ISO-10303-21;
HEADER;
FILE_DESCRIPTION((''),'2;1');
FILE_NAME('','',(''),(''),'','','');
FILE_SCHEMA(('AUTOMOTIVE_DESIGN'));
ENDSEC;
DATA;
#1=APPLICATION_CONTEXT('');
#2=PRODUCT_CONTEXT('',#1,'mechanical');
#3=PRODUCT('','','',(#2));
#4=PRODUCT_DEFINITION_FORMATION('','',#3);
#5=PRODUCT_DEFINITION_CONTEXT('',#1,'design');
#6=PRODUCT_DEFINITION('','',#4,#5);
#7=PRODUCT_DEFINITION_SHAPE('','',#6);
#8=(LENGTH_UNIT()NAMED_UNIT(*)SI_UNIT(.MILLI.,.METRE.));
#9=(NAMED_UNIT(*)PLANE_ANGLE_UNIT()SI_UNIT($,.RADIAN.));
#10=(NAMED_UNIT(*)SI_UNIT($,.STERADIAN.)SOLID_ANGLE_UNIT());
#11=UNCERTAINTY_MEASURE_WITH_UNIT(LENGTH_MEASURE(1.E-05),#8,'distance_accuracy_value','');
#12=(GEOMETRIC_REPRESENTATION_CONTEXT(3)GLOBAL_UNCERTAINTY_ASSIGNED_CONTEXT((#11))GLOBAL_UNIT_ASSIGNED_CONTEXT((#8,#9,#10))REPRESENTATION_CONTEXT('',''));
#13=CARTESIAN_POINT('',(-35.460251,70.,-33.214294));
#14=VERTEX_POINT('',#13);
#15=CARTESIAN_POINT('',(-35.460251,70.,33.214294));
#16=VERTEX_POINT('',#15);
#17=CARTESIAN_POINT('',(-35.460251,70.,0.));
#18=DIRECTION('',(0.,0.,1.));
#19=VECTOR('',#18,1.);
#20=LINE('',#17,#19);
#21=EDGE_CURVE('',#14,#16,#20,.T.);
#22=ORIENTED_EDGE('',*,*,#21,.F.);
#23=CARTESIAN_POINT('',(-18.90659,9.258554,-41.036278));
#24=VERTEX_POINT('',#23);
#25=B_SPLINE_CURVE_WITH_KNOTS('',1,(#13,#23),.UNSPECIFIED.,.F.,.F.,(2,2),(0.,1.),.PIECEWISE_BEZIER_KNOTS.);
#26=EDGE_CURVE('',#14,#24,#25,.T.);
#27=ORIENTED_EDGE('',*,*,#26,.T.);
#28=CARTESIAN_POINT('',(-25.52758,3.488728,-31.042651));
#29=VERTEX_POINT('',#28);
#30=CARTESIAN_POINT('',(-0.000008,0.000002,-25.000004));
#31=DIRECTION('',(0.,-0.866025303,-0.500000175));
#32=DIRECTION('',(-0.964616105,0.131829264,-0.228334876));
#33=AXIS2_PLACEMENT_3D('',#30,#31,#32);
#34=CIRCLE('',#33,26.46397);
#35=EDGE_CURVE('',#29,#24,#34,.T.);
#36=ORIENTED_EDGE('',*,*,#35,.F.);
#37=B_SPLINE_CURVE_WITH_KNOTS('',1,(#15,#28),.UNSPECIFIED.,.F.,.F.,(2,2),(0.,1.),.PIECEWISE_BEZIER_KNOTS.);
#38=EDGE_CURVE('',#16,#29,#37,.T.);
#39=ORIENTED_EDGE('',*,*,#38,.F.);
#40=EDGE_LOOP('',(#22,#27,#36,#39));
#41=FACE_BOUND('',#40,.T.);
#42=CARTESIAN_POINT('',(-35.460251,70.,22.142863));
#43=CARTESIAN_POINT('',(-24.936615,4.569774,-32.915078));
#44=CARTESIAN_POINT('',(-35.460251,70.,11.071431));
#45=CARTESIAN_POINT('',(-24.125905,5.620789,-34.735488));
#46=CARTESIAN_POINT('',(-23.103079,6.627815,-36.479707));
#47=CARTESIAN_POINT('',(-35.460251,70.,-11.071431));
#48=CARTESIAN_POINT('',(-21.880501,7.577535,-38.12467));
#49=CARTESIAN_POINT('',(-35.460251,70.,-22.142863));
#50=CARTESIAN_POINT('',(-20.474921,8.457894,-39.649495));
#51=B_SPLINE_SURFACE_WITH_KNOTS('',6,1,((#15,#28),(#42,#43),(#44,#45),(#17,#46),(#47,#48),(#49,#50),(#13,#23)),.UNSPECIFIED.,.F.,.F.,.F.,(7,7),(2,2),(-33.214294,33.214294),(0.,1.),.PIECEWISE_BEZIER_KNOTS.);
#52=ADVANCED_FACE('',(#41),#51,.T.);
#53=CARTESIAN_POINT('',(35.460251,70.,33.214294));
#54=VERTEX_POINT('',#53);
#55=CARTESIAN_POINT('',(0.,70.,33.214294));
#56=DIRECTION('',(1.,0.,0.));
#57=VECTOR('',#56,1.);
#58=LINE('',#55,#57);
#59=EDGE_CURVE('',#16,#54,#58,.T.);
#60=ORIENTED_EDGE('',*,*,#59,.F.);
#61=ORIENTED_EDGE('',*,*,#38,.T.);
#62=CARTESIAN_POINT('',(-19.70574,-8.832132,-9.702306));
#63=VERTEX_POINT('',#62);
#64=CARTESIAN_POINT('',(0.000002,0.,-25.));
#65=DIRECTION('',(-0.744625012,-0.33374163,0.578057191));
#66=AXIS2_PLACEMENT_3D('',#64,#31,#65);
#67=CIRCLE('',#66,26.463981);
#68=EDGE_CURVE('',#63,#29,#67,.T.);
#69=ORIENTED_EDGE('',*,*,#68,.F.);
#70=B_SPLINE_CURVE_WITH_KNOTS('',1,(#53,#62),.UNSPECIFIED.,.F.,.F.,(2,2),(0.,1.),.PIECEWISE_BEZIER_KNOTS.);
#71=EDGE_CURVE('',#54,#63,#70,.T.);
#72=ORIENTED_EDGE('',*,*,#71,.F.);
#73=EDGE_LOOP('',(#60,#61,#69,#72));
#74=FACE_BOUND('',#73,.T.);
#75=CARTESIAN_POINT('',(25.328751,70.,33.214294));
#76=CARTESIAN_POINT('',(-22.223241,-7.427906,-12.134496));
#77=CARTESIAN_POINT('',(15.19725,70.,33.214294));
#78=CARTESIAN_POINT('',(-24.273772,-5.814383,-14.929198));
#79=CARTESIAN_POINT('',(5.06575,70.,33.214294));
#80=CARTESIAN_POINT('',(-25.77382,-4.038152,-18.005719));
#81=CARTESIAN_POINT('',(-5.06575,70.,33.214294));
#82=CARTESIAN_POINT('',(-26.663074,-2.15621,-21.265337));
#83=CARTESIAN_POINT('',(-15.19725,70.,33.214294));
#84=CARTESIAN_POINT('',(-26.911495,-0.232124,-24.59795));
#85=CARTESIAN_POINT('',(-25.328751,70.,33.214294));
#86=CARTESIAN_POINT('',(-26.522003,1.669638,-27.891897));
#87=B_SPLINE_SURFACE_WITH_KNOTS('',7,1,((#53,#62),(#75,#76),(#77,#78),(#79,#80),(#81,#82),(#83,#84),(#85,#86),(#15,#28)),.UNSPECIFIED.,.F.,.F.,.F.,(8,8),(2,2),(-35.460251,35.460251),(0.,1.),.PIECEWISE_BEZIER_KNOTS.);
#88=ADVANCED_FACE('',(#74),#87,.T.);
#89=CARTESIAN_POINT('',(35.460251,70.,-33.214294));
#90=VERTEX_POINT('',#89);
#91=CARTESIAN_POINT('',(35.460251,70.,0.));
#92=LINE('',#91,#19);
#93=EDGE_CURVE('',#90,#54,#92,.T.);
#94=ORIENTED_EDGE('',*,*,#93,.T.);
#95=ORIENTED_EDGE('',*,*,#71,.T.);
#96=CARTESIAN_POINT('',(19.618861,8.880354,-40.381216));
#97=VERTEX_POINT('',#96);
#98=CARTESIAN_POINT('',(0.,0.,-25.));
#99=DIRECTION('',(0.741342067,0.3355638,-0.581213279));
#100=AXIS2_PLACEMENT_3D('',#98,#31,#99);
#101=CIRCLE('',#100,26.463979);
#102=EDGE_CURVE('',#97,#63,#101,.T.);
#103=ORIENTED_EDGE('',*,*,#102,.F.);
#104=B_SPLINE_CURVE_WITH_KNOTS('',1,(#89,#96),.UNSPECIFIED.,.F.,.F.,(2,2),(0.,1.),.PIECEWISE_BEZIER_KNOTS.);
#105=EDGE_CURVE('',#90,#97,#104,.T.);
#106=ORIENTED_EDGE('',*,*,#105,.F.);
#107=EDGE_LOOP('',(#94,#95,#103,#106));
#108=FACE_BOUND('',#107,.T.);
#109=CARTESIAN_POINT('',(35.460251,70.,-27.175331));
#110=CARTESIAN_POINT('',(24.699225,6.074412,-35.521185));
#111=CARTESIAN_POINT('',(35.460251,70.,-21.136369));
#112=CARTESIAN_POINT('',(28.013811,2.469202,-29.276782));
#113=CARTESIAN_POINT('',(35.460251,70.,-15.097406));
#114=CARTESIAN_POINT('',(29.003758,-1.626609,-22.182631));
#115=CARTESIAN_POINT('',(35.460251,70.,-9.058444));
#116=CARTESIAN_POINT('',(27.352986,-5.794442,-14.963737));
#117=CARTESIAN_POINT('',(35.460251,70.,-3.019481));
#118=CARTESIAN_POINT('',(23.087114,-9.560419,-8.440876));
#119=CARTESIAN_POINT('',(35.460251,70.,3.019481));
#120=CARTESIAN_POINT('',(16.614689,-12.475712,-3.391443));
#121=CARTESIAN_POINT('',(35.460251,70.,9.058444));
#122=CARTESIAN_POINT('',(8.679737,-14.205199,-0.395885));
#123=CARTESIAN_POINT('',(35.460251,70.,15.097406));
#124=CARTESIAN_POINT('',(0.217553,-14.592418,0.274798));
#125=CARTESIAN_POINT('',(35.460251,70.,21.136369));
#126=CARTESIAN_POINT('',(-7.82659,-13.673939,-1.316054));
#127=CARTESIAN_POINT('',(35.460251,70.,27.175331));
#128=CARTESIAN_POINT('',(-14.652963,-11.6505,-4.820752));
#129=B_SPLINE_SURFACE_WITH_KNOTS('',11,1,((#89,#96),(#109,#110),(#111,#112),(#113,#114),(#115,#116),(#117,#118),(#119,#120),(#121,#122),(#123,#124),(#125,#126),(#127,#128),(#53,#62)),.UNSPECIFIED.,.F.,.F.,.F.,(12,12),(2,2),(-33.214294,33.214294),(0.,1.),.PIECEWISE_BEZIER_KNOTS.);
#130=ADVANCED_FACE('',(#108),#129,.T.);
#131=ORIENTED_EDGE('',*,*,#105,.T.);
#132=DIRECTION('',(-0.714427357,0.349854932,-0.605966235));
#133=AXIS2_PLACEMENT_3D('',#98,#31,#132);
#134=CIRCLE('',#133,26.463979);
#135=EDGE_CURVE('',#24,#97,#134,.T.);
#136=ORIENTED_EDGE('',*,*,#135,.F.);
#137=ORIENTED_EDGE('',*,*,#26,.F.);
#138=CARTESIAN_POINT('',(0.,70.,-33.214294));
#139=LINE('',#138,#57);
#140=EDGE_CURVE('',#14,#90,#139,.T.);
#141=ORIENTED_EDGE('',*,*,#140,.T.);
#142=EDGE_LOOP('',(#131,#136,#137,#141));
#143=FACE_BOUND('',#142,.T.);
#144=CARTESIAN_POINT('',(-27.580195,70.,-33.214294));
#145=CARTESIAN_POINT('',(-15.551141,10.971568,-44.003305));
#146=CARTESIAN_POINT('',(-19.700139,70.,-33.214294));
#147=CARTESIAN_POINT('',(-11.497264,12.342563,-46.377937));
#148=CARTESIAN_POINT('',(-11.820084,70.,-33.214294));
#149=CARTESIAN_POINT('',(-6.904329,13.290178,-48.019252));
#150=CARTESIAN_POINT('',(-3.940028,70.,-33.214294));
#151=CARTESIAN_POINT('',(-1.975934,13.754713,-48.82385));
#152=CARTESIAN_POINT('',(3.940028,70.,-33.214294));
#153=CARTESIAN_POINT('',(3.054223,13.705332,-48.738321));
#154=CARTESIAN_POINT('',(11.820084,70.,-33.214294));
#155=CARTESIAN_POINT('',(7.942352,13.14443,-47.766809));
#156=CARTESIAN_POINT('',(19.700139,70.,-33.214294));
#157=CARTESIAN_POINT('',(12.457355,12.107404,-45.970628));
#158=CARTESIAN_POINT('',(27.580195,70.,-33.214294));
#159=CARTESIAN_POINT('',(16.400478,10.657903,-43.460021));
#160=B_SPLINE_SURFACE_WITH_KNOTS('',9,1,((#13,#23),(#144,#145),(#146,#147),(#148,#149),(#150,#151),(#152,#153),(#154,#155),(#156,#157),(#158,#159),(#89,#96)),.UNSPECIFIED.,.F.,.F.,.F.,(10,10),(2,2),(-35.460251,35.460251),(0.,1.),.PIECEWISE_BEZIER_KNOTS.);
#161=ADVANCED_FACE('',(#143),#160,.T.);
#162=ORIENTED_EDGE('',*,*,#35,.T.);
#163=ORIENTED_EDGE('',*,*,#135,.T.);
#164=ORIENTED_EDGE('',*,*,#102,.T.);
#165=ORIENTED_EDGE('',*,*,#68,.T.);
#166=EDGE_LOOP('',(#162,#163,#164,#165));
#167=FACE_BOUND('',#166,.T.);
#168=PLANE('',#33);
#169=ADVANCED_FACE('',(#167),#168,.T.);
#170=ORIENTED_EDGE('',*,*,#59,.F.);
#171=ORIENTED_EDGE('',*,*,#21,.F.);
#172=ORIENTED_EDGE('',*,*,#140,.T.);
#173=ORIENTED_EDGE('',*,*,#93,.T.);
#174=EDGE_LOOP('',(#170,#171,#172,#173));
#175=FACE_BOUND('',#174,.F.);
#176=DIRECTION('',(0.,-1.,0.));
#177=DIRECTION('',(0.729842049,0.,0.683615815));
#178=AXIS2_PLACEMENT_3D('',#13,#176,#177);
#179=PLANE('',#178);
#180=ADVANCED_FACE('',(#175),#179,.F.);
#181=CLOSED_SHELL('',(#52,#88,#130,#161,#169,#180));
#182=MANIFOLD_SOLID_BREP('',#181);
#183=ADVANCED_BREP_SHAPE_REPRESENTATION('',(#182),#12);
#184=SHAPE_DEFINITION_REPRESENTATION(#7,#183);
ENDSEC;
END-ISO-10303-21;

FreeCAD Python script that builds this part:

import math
import FreeCAD as App
import Part
import Sketcher
from FreeCAD import Vector


def add_polygon(sketch, points):
    """Adds a closed chain of lines whose ends are joined by coincident constraints."""
    first, n = sketch.GeometryCount, len(points)
    for a, b in zip(points, points[1:] + points[:1]):
        sketch.addGeometry(Part.LineSegment(App.Vector(*a, 0), App.Vector(*b, 0)), False)
    for i in range(n):
        sketch.addConstraint(Sketcher.Constraint("Coincident", first + i, 2, first + (i + 1) % n, 1))

doc = App.newDocument("Part")
body = doc.addObject("PartDesign::Body", "Body")

# Sketch on XZ plane
sketch1 = doc.addObject("Sketcher::SketchObject", "Sketch")
body.addObject(sketch1)
sketch1.AttachmentSupport = (doc.XZ_Plane, [""])
sketch1.MapMode = "FlatFace"
sketch1.AttachmentOffset = App.Placement(Vector(0, 0, -70), App.Rotation())
add_polygon(sketch1, [(-35, 33), (-35, -33), (35, -33), (35, 33)])  # lines 0-3
sketch1.addConstraint([
    Sketcher.Constraint("Vertical", 0),
    Sketcher.Constraint("Horizontal", 1),
    Sketcher.Constraint("Vertical", 2),
    Sketcher.Constraint("Horizontal", 3),
    Sketcher.Constraint("Symmetric", 0, 2, 2, 2, -1, 1),
    Sketcher.Constraint("DistanceX", 1, 1, 1, 2, 70.920502),
    Sketcher.Constraint("DistanceY", 0, 2, 0, 1, 66.428588),
])

# Sketch on an angled plane
sketch2 = doc.addObject("Sketcher::SketchObject", "Sketch001")
body.addObject(sketch2)
sketch2.Placement = App.Placement(Vector(0, 0, -25), App.Rotation(Vector(1, 0, 0), Vector(0, -0.500000175, 0.866025303), Vector(0, -0.866025303, -0.500000175), "ZXY"))
sketch2.addGeometry([
    Part.ArcOfCircle(Part.Circle(Vector(0, 0, 0), Vector(0, 0, 1), 26), math.radians(-42), math.radians(138)),
    Part.ArcOfCircle(Part.Circle(Vector(0, 0, 0), Vector(0, 0, 1), 26), math.radians(138), math.radians(195)),
    Part.ArcOfCircle(Part.Circle(Vector(0, 0, 0), Vector(0, 0, 1), 26), math.radians(-165), math.radians(-136)),
    Part.ArcOfCircle(Part.Circle(Vector(0, 0, 0), Vector(0, 0, 1), 26), math.radians(-136), math.radians(-42)),
], False)
sketch2.addConstraint([
    Sketcher.Constraint("Tangent", 0, 2, 1, 1),
    Sketcher.Constraint("Tangent", 1, 2, 2, 1),
    Sketcher.Constraint("Tangent", 2, 2, 3, 1),
    Sketcher.Constraint("Tangent", 3, 2, 0, 1),
    Sketcher.Constraint("Coincident", 0, 3, -1, 1),
    Sketcher.Constraint("Equal", 0, 3),
    Sketcher.Constraint("Radius", 0, 26.463979),
    Sketcher.Constraint("DistanceY", 2, 2, -1, 1, 18.517101),
    Sketcher.Constraint("DistanceY", 3, 2, -1, 1, 17.760701),
    Sketcher.Constraint("DistanceX", 0, 2, -1, 1, 19.70574),
    Sketcher.Constraint("DistanceX", 1, 2, -1, 1, 25.52758),
])

additiveloft = doc.addObject("PartDesign::AdditiveLoft", "AdditiveLoft")
body.addObject(additiveloft)
additiveloft.Profile = sketch1
additiveloft.Sections = [sketch2]

doc.recompute()
